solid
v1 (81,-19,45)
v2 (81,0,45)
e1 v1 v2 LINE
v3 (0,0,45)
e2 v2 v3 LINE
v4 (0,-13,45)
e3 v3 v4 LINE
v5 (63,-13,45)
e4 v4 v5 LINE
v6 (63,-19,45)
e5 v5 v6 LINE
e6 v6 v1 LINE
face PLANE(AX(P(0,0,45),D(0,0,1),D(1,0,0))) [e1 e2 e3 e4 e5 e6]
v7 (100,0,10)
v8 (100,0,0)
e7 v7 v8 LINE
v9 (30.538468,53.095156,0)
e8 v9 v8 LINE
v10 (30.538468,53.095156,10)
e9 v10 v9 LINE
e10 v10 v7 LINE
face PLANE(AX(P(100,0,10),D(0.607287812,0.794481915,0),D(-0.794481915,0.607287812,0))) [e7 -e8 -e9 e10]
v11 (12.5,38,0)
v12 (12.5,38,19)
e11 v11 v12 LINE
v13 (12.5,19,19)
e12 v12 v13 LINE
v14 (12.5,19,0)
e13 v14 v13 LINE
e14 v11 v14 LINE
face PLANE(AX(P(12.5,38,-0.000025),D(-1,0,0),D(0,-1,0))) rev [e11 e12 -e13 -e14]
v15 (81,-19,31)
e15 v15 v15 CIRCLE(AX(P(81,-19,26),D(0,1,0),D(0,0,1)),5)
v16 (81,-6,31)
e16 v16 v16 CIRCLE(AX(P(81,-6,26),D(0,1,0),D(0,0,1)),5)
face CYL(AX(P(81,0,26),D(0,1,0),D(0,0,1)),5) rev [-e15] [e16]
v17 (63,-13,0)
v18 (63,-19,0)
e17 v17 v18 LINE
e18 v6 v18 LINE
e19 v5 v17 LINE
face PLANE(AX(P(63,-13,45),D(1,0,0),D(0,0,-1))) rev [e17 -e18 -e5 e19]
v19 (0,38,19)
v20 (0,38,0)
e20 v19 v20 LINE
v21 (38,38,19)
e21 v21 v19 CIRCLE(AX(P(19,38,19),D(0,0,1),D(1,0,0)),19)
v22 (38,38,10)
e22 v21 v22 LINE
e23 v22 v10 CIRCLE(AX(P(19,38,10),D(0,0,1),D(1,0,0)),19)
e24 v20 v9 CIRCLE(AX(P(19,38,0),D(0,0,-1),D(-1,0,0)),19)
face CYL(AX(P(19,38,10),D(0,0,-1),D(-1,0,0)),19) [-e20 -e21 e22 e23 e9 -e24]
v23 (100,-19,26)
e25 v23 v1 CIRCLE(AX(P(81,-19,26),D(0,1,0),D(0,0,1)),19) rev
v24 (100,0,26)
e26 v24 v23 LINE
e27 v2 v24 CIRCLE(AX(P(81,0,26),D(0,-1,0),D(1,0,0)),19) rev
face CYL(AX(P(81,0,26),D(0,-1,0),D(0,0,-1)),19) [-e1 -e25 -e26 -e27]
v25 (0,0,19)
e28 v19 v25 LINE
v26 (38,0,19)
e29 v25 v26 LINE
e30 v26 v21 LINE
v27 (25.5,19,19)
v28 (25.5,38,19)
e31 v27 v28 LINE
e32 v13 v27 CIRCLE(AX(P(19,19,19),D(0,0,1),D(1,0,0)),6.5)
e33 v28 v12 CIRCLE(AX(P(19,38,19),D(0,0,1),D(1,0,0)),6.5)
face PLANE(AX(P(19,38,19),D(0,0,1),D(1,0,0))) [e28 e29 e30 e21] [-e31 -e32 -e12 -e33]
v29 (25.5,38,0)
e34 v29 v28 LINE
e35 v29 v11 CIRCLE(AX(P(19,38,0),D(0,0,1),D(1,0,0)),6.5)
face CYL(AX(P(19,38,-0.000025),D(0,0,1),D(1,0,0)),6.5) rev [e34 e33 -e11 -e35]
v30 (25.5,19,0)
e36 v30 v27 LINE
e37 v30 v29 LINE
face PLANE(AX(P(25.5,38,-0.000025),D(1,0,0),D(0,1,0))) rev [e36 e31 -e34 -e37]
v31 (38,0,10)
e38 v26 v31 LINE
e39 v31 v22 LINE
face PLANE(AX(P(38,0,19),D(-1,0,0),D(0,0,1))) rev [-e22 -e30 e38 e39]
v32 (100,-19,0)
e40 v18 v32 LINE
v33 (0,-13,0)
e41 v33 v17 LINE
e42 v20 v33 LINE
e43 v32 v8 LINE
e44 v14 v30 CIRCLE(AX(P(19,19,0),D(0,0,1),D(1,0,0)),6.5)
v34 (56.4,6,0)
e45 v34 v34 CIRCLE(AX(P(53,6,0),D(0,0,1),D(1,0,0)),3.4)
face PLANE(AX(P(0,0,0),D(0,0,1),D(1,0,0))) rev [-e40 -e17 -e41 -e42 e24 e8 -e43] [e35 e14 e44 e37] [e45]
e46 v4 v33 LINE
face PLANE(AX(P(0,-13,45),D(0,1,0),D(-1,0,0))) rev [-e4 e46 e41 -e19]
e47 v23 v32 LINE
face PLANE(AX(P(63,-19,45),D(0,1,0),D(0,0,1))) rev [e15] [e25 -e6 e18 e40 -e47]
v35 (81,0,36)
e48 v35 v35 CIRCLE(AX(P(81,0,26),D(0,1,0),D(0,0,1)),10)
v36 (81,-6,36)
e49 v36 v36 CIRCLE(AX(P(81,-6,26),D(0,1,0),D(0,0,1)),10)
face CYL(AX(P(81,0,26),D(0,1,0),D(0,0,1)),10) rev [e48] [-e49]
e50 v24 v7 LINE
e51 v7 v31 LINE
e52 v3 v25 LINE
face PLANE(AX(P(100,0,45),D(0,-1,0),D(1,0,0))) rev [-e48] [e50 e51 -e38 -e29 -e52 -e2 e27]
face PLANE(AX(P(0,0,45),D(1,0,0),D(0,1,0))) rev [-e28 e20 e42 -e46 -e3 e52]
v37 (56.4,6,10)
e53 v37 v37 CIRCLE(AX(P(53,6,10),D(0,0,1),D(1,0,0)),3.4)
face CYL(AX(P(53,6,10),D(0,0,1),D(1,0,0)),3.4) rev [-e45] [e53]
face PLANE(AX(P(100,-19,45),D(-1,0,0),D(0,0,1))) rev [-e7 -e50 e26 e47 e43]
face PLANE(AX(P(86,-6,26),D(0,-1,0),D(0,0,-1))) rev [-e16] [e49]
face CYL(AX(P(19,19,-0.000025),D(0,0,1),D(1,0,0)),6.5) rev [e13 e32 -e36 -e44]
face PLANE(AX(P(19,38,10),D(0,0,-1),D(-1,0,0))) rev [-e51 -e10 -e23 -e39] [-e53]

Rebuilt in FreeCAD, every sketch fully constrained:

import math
import FreeCAD as App
import Part
import Sketcher


def edges_at(feature, points):
    """Names of the edges that pass closest to the given points."""
    edges = feature.Shape.Edges
    near = lambda p: min(range(len(edges)), key=lambda i: edges[i].distToShape(Part.Vertex(*p))[0])
    return sorted({f"Edge{near(p) + 1}" for p in points})


def add_polygon(sketch, points):
    """Adds a closed chain of lines whose ends are joined by coincident constraints."""
    first, n = sketch.GeometryCount, len(points)
    for a, b in zip(points, points[1:] + points[:1]):
        sketch.addGeometry(Part.LineSegment(App.Vector(*a, 0), App.Vector(*b, 0)), False)
    for i in range(n):
        sketch.addConstraint(Sketcher.Constraint("Coincident", first + i, 2, first + (i + 1) % n, 1))

doc = App.newDocument("Part")
body = doc.addObject("PartDesign::Body", "Body")

# Sketch on XY plane
sketch1 = doc.addObject("Sketcher::SketchObject", "Sketch")
body.addObject(sketch1)
sketch1.AttachmentSupport = (doc.XY_Plane, [""])
sketch1.MapMode = "FlatFace"
add_polygon(sketch1, [(0, 0), (0, -13), (63, -13), (63, -19), (100, -19), (100, 0)])  # lines 0-5
sketch1.addConstraint(Sketcher.Constraint("Vertical", 0))
sketch1.addConstraint(Sketcher.Constraint("Horizontal", 1))
sketch1.addConstraint(Sketcher.Constraint("Vertical", 2))
sketch1.addConstraint(Sketcher.Constraint("Horizontal", 3))
sketch1.addConstraint(Sketcher.Constraint("Vertical", 4))
sketch1.addConstraint(Sketcher.Constraint("Horizontal", 5))
sketch1.addConstraint(Sketcher.Constraint("Coincident", 5, 2, -1, 1))
sketch1.addConstraint(Sketcher.Constraint("DistanceX", 1, 1, 1, 2, 63.0))
sketch1.addConstraint(Sketcher.Constraint("DistanceX", 3, 1, 3, 2, 37.0))
sketch1.addConstraint(Sketcher.Constraint("DistanceY", 0, 2, 0, 1, 13.0))
sketch1.addConstraint(Sketcher.Constraint("DistanceY", 2, 2, 2, 1, 6.0))
pad1 = doc.addObject("PartDesign::Pad", "Pad")
body.addObject(pad1)
pad1.Profile = sketch1
pad1.Length = 45

# Sketch on XY plane
sketch2 = doc.addObject("Sketcher::SketchObject", "Sketch001")
body.addObject(sketch2)
sketch2.AttachmentSupport = (doc.XY_Plane, [""])
sketch2.MapMode = "FlatFace"
sketch2.addGeometry(Part.LineSegment(App.Vector(0, 0, 0), App.Vector(0, 38, 0)), False)
sketch2.addGeometry(Part.ArcOfCircle(Part.Circle(App.Vector(19, 38, 0), App.Vector(0, 0, 1), 19), math.radians(53), math.radians(180)), False)
sketch2.addGeometry(Part.LineSegment(App.Vector(31, 53, 0), App.Vector(100, 0, 0)), False)
sketch2.addGeometry(Part.LineSegment(App.Vector(100, 0, 0), App.Vector(0, 0, 0)), False)
sketch2.addConstraint(Sketcher.Constraint("Tangent", 0, 2, 1, 2))
sketch2.addConstraint(Sketcher.Constraint("Tangent", 1, 1, 2, 1))
sketch2.addConstraint(Sketcher.Constraint("Coincident", 2, 2, 3, 1))
sketch2.addConstraint(Sketcher.Constraint("Coincident", 3, 2, 0, 1))
sketch2.addConstraint(Sketcher.Constraint("Vertical", 0))
sketch2.addConstraint(Sketcher.Constraint("Horizontal", 3))
sketch2.addConstraint(Sketcher.Constraint("Coincident", 3, 2, -1, 1))
sketch2.addConstraint(Sketcher.Constraint("Radius", 1, 19.0))
sketch2.addConstraint(Sketcher.Constraint("DistanceX", 3, 2, 3, 1, 100.0))
sketch2.addConstraint(Sketcher.Constraint("DistanceY", 0, 1, 0, 2, 38.0))
pad2 = doc.addObject("PartDesign::Pad", "Pad001")
body.addObject(pad2)
pad2.Profile = sketch2
pad2.Length = 10

# Sketch on XY plane
sketch3 = doc.addObject("Sketcher::SketchObject", "Sketch002")
body.addObject(sketch3)
sketch3.AttachmentSupport = (doc.XY_Plane, [""])
sketch3.MapMode = "FlatFace"
sketch3.AttachmentOffset = App.Placement(App.Vector(0, 0, 10), App.Rotation())
sketch3.addGeometry(Part.LineSegment(App.Vector(0, 38, 0), App.Vector(0, 0, 0)), False)
sketch3.addGeometry(Part.LineSegment(App.Vector(0, 0, 0), App.Vector(38, 0, 0)), False)
sketch3.addGeometry(Part.LineSegment(App.Vector(38, 0, 0), App.Vector(38, 38, 0)), False)
sketch3.addGeometry(Part.ArcOfCircle(Part.Circle(App.Vector(19, 38, 0), App.Vector(0, 0, 1), 19), math.radians(0), math.radians(180)), False)
sketch3.addConstraint(Sketcher.Constraint("Coincident", 0, 2, 1, 1))
sketch3.addConstraint(Sketcher.Constraint("Coincident", 1, 2, 2, 1))
sketch3.addConstraint(Sketcher.Constraint("Tangent", 2, 2, 3, 1))
sketch3.addConstraint(Sketcher.Constraint("Tangent", 3, 2, 0, 1))
sketch3.addConstraint(Sketcher.Constraint("Vertical", 0))
sketch3.addConstraint(Sketcher.Constraint("Horizontal", 1))
sketch3.addConstraint(Sketcher.Constraint("Vertical", 2))
sketch3.addConstraint(Sketcher.Constraint("Coincident", 0, 2, -1, 1))
sketch3.addConstraint(Sketcher.Constraint("Equal", 1, 0))
sketch3.addConstraint(Sketcher.Constraint("Radius", 3, 19.0))
pad3 = doc.addObject("PartDesign::Pad", "Pad002")
body.addObject(pad3)
pad3.Profile = sketch3
pad3.Length = 9

# Sketch on XY plane
sketch4 = doc.addObject("Sketcher::SketchObject", "Sketch003")
body.addObject(sketch4)
sketch4.AttachmentSupport = (doc.XY_Plane, [""])
sketch4.MapMode = "FlatFace"
sketch4.AttachmentOffset = App.Placement(App.Vector(0, 0, 19), App.Rotation())
sketch4.addGeometry(Part.LineSegment(App.Vector(26, 19, 0), App.Vector(26, 38, 0)), False)
sketch4.addGeometry(Part.ArcOfCircle(Part.Circle(App.Vector(19, 38, 0), App.Vector(0, 0, 1), 6), math.radians(0), math.radians(180)), False)
sketch4.addGeometry(Part.LineSegment(App.Vector(12, 38, 0), App.Vector(12, 19, 0)), False)
sketch4.addGeometry(Part.ArcOfCircle(Part.Circle(App.Vector(19, 19, 0), App.Vector(0, 0, 1), 6), math.radians(180), math.radians(360)), False)
sketch4.addConstraint(Sketcher.Constraint("Tangent", 0, 2, 1, 1))
sketch4.addConstraint(Sketcher.Constraint("Tangent", 1, 2, 2, 1))
sketch4.addConstraint(Sketcher.Constraint("Tangent", 2, 2, 3, 1))
sketch4.addConstraint(Sketcher.Constraint("Tangent", 3, 2, 0, 1))
sketch4.addConstraint(Sketcher.Constraint("Vertical", 0))
sketch4.addConstraint(Sketcher.Constraint("Vertical", 2))
sketch4.addConstraint(Sketcher.Constraint("Radius", 1, 6.5))
sketch4.addConstraint(Sketcher.Constraint("DistanceY", 0, 1, 0, 2, 19.0))
sketch4.addConstraint(Sketcher.Constraint("DistanceX", -1, 1, 1, 3, 19.0))
sketch4.addConstraint(Sketcher.Constraint("DistanceY", -1, 1, 1, 3, 38.0))
pocket1 = doc.addObject("PartDesign::Pocket", "Pocket")
body.addObject(pocket1)
pocket1.Profile = sketch4
pocket1.Type = "ThroughAll"
doc.recompute()

fillet = doc.addObject("PartDesign::Fillet", "Fillet")
body.addObject(fillet)
fillet.Base = (pocket1, edges_at(pocket1, [(100, -9.5, 45)]))
fillet.Radius = 19

# Sketch on XZ plane
sketch5 = doc.addObject("Sketcher::SketchObject", "Sketch004")
body.addObject(sketch5)
sketch5.AttachmentSupport = (doc.XZ_Plane, [""])
sketch5.MapMode = "FlatFace"
sketch5.addGeometry(Part.Circle(App.Vector(81, 26, 0), App.Vector(0, 0, 1), 5), False)
sketch5.addConstraint(Sketcher.Constraint("Diameter", 0, 10.0))
sketch5.addConstraint(Sketcher.Constraint("DistanceX", -1, 1, 0, 3, 81.0))
sketch5.addConstraint(Sketcher.Constraint("DistanceY", -1, 1, 0, 3, 26.0))
doc.recompute()
hole = doc.addObject("PartDesign::Hole", "Hole")
body.addObject(hole)
hole.Profile = sketch5
hole.ThreadType = "None"
hole.Diameter = 10
hole.DepthType = "ThroughAll"
hole.HoleCutType = "Counterbore"
hole.HoleCutDiameter = 20
hole.HoleCutDepth = 6
hole.Reversed = True

# Sketch on XY plane
sketch6 = doc.addObject("Sketcher::SketchObject", "Sketch005")
body.addObject(sketch6)
sketch6.AttachmentSupport = (doc.XY_Plane, [""])
sketch6.MapMode = "FlatFace"
sketch6.AttachmentOffset = App.Placement(App.Vector(0, 0, 10), App.Rotation())
sketch6.addGeometry(Part.Circle(App.Vector(53, 6, 0), App.Vector(0, 0, 1), 3.4), False)
sketch6.addConstraint(Sketcher.Constraint("Diameter", 0, 6.8))
sketch6.addConstraint(Sketcher.Constraint("DistanceX", -1, 1, 0, 3, 53.0))
sketch6.addConstraint(Sketcher.Constraint("DistanceY", -1, 1, 0, 3, 6.0))
doc.recompute()
hole2 = doc.addObject("PartDesign::Hole", "Hole001")
body.addObject(hole2)
hole2.Profile = sketch6
hole2.ThreadType = "None"
hole2.Diameter = 6.8
hole2.DepthType = "ThroughAll"

doc.recompute()
